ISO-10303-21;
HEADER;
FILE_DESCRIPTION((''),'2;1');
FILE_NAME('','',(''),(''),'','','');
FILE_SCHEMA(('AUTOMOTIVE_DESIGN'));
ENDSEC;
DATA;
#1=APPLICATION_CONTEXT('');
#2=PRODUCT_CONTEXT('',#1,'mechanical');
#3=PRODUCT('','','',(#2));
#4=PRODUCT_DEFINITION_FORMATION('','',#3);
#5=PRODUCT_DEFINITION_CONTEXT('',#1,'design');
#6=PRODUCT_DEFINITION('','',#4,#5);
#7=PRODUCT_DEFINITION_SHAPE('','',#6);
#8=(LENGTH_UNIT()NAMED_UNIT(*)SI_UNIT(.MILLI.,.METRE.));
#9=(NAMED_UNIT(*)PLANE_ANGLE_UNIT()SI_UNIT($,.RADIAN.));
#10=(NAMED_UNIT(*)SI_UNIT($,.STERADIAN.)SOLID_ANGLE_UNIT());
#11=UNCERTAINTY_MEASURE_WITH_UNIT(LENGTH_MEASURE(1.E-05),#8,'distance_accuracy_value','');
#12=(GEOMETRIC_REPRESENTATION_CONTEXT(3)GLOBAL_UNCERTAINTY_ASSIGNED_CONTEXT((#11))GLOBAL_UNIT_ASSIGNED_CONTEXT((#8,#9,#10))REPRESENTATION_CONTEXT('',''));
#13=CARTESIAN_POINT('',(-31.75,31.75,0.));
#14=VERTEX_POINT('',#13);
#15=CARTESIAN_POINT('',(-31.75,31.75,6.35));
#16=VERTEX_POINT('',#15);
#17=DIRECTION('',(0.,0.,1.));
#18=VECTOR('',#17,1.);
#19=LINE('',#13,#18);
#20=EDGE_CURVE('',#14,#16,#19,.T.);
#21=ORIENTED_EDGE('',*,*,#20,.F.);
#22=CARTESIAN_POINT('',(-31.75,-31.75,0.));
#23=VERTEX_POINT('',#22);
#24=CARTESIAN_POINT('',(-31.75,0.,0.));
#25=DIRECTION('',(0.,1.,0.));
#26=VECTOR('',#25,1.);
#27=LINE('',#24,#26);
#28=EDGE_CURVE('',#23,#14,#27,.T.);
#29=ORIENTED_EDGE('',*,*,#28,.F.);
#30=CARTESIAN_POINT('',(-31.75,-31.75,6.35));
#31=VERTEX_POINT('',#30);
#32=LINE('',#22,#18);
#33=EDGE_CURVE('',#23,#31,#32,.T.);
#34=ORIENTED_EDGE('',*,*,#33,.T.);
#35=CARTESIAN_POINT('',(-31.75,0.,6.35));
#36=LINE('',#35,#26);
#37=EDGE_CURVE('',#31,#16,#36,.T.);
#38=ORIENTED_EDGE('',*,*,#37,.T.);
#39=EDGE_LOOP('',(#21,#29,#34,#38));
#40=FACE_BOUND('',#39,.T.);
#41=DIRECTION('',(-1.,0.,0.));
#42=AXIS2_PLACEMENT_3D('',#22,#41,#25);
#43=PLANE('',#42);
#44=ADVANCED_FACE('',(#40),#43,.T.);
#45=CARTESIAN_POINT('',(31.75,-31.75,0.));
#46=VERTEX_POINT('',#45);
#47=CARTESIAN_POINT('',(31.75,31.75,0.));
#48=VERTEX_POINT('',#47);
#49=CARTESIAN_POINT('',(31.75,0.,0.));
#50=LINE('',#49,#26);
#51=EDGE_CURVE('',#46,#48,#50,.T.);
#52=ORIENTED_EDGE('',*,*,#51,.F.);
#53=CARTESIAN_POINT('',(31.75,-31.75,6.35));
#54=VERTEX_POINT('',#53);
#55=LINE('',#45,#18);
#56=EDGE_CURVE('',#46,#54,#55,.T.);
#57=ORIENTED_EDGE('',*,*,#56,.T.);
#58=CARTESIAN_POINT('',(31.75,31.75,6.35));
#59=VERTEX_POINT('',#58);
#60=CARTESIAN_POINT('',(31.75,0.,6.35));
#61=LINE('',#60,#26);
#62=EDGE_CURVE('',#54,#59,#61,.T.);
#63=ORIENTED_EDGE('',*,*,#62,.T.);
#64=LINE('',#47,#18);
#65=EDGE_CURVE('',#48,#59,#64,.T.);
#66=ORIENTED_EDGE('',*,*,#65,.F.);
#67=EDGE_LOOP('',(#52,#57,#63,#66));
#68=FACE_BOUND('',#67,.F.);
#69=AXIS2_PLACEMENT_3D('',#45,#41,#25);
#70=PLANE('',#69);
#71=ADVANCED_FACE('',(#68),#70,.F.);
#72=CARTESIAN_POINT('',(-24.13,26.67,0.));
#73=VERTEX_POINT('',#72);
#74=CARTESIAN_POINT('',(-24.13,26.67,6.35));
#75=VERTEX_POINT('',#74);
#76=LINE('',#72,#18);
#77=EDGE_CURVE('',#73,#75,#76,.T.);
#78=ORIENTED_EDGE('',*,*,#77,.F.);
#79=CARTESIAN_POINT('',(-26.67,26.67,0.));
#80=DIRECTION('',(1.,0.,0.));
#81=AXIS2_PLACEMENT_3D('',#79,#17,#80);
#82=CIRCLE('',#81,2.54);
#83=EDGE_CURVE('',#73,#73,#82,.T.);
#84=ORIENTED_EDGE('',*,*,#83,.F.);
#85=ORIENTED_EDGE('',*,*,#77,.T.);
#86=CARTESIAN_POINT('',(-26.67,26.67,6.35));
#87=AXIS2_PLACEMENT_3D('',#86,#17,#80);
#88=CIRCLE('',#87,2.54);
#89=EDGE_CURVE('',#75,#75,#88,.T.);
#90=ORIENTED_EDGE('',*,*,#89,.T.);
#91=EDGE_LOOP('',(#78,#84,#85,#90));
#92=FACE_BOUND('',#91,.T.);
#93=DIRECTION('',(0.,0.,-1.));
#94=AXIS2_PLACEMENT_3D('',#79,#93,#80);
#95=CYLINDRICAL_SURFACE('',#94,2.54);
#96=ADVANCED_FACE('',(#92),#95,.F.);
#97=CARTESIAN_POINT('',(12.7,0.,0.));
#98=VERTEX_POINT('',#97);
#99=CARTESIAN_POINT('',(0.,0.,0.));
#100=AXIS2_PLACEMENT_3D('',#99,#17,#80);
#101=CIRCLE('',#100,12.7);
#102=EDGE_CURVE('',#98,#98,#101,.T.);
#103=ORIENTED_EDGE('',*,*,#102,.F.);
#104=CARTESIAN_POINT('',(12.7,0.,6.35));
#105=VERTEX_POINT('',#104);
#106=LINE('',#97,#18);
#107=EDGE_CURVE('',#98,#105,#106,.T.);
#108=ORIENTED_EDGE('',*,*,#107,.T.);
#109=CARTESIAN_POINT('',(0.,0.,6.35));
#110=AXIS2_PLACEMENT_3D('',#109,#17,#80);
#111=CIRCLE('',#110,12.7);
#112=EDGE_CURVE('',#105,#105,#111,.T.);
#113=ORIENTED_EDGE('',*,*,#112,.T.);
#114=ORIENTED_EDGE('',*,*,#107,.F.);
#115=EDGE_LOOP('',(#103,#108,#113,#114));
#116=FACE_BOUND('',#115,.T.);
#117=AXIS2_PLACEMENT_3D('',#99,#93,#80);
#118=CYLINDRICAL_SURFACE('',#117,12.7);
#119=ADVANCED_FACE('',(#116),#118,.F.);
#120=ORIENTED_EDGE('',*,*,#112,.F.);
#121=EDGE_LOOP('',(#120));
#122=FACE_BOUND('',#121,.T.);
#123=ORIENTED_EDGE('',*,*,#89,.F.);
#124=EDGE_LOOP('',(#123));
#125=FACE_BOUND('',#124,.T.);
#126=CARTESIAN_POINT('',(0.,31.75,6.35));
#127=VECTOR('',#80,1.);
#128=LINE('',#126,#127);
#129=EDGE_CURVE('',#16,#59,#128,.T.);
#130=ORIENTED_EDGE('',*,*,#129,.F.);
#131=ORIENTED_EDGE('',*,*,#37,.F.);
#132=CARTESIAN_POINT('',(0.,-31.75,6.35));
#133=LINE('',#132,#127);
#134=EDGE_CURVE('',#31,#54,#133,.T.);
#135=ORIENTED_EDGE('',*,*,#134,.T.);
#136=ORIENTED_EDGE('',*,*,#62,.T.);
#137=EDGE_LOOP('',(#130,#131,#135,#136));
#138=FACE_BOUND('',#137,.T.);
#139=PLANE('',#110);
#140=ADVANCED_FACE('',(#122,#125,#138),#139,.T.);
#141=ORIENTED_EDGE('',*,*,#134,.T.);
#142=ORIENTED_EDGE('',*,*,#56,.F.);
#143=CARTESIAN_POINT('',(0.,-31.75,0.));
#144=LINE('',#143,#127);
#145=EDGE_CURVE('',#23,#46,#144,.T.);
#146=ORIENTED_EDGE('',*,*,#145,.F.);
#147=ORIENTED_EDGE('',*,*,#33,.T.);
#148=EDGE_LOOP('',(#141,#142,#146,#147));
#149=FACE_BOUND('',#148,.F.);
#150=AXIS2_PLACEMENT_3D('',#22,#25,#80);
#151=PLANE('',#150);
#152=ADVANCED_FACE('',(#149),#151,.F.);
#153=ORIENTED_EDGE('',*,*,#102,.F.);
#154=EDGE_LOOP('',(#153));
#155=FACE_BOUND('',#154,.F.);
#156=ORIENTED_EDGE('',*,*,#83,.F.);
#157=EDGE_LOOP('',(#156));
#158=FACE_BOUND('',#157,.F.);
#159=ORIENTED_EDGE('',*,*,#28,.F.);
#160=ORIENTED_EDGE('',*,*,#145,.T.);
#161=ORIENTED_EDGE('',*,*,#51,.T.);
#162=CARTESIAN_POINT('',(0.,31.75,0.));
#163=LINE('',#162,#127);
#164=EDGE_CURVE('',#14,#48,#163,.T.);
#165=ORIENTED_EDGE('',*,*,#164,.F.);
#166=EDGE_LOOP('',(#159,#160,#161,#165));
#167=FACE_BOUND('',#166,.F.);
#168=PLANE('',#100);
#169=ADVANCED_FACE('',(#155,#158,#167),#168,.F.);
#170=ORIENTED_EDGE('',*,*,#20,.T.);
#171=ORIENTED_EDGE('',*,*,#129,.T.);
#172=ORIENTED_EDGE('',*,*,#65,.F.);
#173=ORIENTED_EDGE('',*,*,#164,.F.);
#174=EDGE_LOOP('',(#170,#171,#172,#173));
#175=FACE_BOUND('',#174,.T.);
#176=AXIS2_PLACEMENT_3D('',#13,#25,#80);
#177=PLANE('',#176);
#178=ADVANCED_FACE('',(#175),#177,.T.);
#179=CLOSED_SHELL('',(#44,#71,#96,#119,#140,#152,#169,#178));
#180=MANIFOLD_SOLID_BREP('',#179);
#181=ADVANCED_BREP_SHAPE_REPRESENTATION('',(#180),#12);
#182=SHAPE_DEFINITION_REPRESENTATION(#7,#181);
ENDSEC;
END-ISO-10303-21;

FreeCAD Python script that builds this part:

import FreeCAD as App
import Part
import Sketcher

V = App.Vector
Q = App.Units.Quantity

doc = App.newDocument("Part")
body = doc.addObject("PartDesign::Body", "Body")

sketch1 = body.newObject("Sketcher::SketchObject", "Sketch")
sketch1.AttachmentSupport = (doc.getObject("XY_Plane"), [""])
sketch1.MapMode = "FlatFace"
sketch1.addGeometry([
    Part.LineSegment(V(-32, 32, 0), V(-32, -32, 0)),
    Part.LineSegment(V(-32, -32, 0), V(32, -32, 0)),
    Part.LineSegment(V(32, -32, 0), V(32, 32, 0)),
    Part.LineSegment(V(32, 32, 0), V(-32, 32, 0)),
], False)
sketch1.addConstraint([
    Sketcher.Constraint("Coincident", 0, 2, 1, 1),
    Sketcher.Constraint("Coincident", 1, 2, 2, 1),
    Sketcher.Constraint("Coincident", 2, 2, 3, 1),
    Sketcher.Constraint("Coincident", 3, 2, 0, 1),
    Sketcher.Constraint("Vertical", 0),
    Sketcher.Constraint("Horizontal", 1),
    Sketcher.Constraint("Vertical", 2),
    Sketcher.Constraint("Horizontal", 3),
    Sketcher.Constraint("Symmetric", 0, 2, 2, 2, -1, 1),
    Sketcher.Constraint("Equal", 3, 0),
    Sketcher.Constraint("DistanceX", 1, 1, 1, 2, Q("2.5 in")),
])
pad1 = body.newObject("PartDesign::Pad", "Pad")
pad1.Profile = sketch1
pad1.Length = Q("0.25 in")

sketch2 = body.newObject("Sketcher::SketchObject", "Sketch001")
sketch2.AttachmentSupport = (doc.getObject("XY_Plane"), [""])
sketch2.MapMode = "FlatFace"
sketch2.addGeometry(Part.Circle(V(0, 0, 0), V(0, 0, 1), 13), False)
sketch2.addConstraint([
    Sketcher.Constraint("Coincident", 0, 3, -1, 1),
    Sketcher.Constraint("Diameter", 0, Q("1 in")),
])
pocket1 = body.newObject("PartDesign::Pocket", "Pocket")
pocket1.Profile = sketch2
pocket1.Type = "ThroughAll"
pocket1.Reversed = True

sketch3 = body.newObject("Sketcher::SketchObject", "Sketch002")
sketch3.AttachmentSupport = (doc.getObject("XY_Plane"), [""])
sketch3.MapMode = "FlatFace"
sketch3.addGeometry(Part.Circle(V(-26.7, 26.7, 0), V(0, 0, 1), 2.5), False)
sketch3.addConstraint([
    Sketcher.Constraint("Diameter", 0, Q("0.2 in")),
    Sketcher.Constraint("DistanceX", 0, 3, -1, 1, Q("1.05 in")),
    Sketcher.Constraint("DistanceY", -1, 1, 0, 3, Q("1.05 in")),
])
pocket2 = body.newObject("PartDesign::Pocket", "Pocket001")
pocket2.Profile = sketch3
pocket2.Type = "ThroughAll"
pocket2.Reversed = True

doc.recompute()
